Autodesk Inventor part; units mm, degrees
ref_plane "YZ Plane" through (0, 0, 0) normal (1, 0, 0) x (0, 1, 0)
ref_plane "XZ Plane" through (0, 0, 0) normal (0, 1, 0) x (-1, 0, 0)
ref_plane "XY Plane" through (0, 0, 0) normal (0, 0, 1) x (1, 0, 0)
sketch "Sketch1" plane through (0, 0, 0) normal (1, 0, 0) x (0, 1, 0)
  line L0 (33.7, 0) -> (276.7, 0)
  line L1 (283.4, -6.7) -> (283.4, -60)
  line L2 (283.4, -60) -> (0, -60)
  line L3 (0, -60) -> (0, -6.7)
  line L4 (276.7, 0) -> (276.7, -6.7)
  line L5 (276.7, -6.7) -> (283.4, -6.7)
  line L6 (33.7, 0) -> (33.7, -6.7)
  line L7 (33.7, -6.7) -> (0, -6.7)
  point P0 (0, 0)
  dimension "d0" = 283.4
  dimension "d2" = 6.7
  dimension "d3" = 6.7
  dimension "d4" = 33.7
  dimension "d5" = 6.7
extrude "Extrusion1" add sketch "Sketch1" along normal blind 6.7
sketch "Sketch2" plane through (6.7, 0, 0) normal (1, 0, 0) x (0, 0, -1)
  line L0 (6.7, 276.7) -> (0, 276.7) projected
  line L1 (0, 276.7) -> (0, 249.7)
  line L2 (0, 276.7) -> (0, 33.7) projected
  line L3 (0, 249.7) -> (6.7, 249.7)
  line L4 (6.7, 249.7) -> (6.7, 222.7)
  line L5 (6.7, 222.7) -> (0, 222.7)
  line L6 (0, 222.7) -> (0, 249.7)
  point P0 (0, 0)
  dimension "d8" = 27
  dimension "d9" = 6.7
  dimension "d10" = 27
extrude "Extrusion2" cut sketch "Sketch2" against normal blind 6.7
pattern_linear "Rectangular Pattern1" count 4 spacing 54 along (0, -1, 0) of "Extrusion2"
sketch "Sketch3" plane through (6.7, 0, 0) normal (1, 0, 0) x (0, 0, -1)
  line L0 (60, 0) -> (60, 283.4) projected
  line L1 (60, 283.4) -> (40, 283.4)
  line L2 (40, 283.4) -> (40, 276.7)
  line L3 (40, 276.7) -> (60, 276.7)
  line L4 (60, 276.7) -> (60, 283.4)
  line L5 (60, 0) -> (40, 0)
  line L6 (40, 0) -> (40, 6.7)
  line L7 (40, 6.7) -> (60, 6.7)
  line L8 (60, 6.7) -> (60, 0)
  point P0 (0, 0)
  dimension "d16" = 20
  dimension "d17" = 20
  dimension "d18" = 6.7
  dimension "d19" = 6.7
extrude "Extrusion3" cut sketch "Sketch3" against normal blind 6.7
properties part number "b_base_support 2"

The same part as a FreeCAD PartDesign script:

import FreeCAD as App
import Part
import Sketcher


def add_polygon(sketch, points):
    """Adds a closed chain of lines whose ends are joined by coincident constraints."""
    first, n = sketch.GeometryCount, len(points)
    for a, b in zip(points, points[1:] + points[:1]):
        sketch.addGeometry(Part.LineSegment(App.Vector(*a, 0), App.Vector(*b, 0)), False)
    for i in range(n):
        sketch.addConstraint(Sketcher.Constraint("Coincident", first + i, 2, first + (i + 1) % n, 1))

doc = App.newDocument("Part")
body = doc.addObject("PartDesign::Body", "Body")

# Sketch on YZ plane
sketch1 = body.newObject("Sketcher::SketchObject", "Sketch")
sketch1.AttachmentSupport = (doc.getObject("YZ_Plane"), [""])
sketch1.MapMode = "FlatFace"
add_polygon(sketch1, [(277, 0), (34, 0), (34, -7), (0, -7), (0, -60), (283, -60), (283, -7), (277, -7)])  # lines 0-7
sketch1.addConstraint([
    Sketcher.Constraint("Horizontal", 0),
    Sketcher.Constraint("Vertical", 1),
    Sketcher.Constraint("Horizontal", 2),
    Sketcher.Constraint("Vertical", 3),
    Sketcher.Constraint("Horizontal", 4),
    Sketcher.Constraint("Vertical", 5),
    Sketcher.Constraint("Horizontal", 6),
    Sketcher.Constraint("Vertical", 7),
    Sketcher.Constraint("PointOnObject", 0, 2, -1),
    Sketcher.Constraint("PointOnObject", 2, 2, -2),
    Sketcher.Constraint("Horizontal", 2, 2, 5, 2),
    Sketcher.Constraint("Equal", 6, 1),
    Sketcher.Constraint("DistanceX", 2, 2, 2, 1, 33.7),
    Sketcher.Constraint("DistanceX", 4, 1, 4, 2, 283.4),
    Sketcher.Constraint("DistanceX", 6, 2, 6, 1, 6.7),
    Sketcher.Constraint("DistanceY", 3, 2, 3, 1, 53.3),
])
pad1 = body.newObject("PartDesign::Pad", "Pad")
pad1.Profile = sketch1
pad1.Length = 6.7

# Sketch on YZ plane
sketch2 = body.newObject("Sketcher::SketchObject", "Sketch001")
sketch2.AttachmentSupport = (doc.getObject("YZ_Plane"), [""])
sketch2.MapMode = "FlatFace"
sketch2.AttachmentOffset = App.Placement(App.Vector(0, 0, 6.7), App.Rotation())
add_polygon(sketch2, [(250, -7), (250, 0), (223, 0), (223, -7)])  # lines 0-3
sketch2.addConstraint([
    Sketcher.Constraint("Vertical", 0),
    Sketcher.Constraint("Horizontal", 1),
    Sketcher.Constraint("Vertical", 2),
    Sketcher.Constraint("Horizontal", 3),
    Sketcher.Constraint("PointOnObject", 0, 2, -1),
    Sketcher.Constraint("DistanceX", 1, 2, 1, 1, 27.0),
    Sketcher.Constraint("DistanceY", 0, 1, 0, 2, 6.7),
    Sketcher.Constraint("DistanceX", -1, 1, 0, 2, 249.7),
])
pocket1 = body.newObject("PartDesign::Pocket", "Pocket")
pocket1.Profile = sketch2
pocket1.Length = 6.7
doc.recompute()

linearpattern = body.newObject("PartDesign::LinearPattern", "LinearPattern")
linearpattern.Originals = [pocket1]
linearpattern.Direction = (doc.getObject("Y_Axis"), [""])
linearpattern.Mode = "offset"
linearpattern.Offset = 54
linearpattern.Occurrences = 4
linearpattern.Reversed = True
body.Tip = linearpattern

# Sketch on YZ plane
sketch3 = body.newObject("Sketcher::SketchObject", "Sketch002")
sketch3.AttachmentSupport = (doc.getObject("YZ_Plane"), [""])
sketch3.MapMode = "FlatFace"
sketch3.AttachmentOffset = App.Placement(App.Vector(0, 0, 6.7), App.Rotation())
add_polygon(sketch3, [(0, -40), (0, -60), (7, -60), (7, -40)])  # lines 0-3
add_polygon(sketch3, [(277, -40), (277, -60), (283, -60), (283, -40)])  # lines 4-7
sketch3.addConstraint([
    Sketcher.Constraint("Vertical", 0),
    Sketcher.Constraint("Horizontal", 1),
    Sketcher.Constraint("Vertical", 2),
    Sketcher.Constraint("Horizontal", 3),
    Sketcher.Constraint("Vertical", 4),
    Sketcher.Constraint("Horizontal", 5),
    Sketcher.Constraint("Vertical", 6),
    Sketcher.Constraint("Horizontal", 7),
    Sketcher.Constraint("PointOnObject", 0, 2, -2),
    Sketcher.Constraint("Horizontal", 1, 2, 4, 2),
    Sketcher.Constraint("Horizontal", 3, 2, 6, 2),
    Sketcher.Constraint("Equal", 3, 5),
    Sketcher.Constraint("DistanceY", 0, 2, 0, 1, 20.0),
    Sketcher.Constraint("DistanceX", 1, 1, 1, 2, 6.7),
    Sketcher.Constraint("DistanceY", 0, 2, -1, 1, 60.0),
    Sketcher.Constraint("DistanceX", 1, 2, 4, 2, 270.0),
])
pocket2 = body.newObject("PartDesign::Pocket", "Pocket001")
pocket2.Profile = sketch3
pocket2.Length = 6.7

doc.recompute()
